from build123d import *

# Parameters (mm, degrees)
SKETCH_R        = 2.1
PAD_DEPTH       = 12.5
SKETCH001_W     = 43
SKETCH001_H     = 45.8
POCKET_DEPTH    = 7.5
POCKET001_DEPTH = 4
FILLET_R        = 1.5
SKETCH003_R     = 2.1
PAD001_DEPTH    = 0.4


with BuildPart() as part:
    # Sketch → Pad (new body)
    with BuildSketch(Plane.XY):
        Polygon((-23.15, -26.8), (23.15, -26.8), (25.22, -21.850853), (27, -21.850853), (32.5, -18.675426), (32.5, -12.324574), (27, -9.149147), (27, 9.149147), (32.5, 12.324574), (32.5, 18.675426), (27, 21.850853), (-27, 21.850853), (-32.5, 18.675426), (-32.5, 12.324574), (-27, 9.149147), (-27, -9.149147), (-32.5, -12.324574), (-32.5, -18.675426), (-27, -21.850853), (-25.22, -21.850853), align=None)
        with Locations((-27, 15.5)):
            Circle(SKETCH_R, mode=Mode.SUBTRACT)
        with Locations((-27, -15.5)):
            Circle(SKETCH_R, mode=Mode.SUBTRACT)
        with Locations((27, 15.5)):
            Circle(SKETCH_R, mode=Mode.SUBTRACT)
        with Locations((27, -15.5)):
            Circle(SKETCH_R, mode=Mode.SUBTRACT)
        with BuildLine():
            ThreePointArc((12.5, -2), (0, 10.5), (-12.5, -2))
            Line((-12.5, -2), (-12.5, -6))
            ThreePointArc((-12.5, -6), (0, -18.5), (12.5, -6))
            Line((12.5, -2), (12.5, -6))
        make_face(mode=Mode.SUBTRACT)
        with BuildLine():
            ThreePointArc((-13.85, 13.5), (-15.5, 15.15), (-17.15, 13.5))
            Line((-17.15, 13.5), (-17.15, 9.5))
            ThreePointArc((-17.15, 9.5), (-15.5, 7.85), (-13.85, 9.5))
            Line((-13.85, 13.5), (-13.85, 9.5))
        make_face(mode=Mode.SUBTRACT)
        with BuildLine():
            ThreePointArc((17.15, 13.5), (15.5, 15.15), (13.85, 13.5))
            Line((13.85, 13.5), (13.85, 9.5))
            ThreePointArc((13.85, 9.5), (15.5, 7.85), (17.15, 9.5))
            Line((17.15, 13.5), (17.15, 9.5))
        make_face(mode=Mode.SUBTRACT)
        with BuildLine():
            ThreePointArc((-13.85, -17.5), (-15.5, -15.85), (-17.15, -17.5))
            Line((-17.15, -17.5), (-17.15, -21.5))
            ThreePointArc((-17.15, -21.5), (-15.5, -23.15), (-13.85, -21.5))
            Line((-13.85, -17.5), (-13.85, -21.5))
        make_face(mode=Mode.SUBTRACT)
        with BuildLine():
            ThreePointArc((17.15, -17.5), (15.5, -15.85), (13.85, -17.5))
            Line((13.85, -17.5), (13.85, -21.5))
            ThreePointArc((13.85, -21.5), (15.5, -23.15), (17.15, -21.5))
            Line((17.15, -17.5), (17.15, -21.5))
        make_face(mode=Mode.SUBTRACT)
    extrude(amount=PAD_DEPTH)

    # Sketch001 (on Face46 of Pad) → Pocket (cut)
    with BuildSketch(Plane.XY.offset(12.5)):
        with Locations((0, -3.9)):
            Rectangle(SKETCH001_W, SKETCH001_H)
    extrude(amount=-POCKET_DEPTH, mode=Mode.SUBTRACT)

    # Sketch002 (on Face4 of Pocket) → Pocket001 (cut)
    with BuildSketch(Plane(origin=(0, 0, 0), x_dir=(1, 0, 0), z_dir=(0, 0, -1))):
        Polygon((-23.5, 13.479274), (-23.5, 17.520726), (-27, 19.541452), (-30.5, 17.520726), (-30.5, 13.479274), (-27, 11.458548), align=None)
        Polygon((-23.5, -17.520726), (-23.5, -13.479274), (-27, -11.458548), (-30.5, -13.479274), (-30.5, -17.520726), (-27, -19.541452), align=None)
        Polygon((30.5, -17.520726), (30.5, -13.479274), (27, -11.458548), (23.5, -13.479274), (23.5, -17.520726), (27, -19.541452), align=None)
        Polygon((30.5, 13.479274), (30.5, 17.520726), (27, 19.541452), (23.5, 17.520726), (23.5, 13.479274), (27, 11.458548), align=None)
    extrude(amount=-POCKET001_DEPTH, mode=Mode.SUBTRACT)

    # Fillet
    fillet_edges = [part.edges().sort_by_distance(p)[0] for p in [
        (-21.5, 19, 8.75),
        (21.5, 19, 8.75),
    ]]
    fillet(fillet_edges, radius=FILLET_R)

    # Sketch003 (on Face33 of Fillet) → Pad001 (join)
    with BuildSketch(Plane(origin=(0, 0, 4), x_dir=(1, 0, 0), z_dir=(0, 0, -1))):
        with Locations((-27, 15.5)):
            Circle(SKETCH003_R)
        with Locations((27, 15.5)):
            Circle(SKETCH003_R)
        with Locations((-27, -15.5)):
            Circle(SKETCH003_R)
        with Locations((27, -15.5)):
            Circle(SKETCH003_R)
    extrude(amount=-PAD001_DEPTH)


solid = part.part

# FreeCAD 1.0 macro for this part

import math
import FreeCAD as App
import Part
import Sketcher
Q = App.Units.Quantity


def edges_at(feature, points):
    """Names of the edges that pass closest to the given points."""
    edges = feature.Shape.Edges
    near = lambda p: min(range(len(edges)), key=lambda i: edges[i].distToShape(Part.Vertex(*p))[0])
    return sorted({f"Edge{near(p) + 1}" for p in points})


def add_polygon(sketch, points):
    """Adds a closed chain of lines whose ends are joined by coincident constraints."""
    first, n = sketch.GeometryCount, len(points)
    for a, b in zip(points, points[1:] + points[:1]):
        sketch.addGeometry(Part.LineSegment(App.Vector(*a, 0), App.Vector(*b, 0)), False)
    for i in range(n):
        sketch.addConstraint(Sketcher.Constraint("Coincident", first + i, 2, first + (i + 1) % n, 1))

doc = App.newDocument("Part")
body = doc.addObject("PartDesign::Body", "Body")

sketch1 = doc.addObject("Sketcher::SketchObject", "Sketch")
body.addObject(sketch1)
sketch1.AttachmentSupport = (doc.XY_Plane, [""])
sketch1.MapMode = "FlatFace"
add_polygon(sketch1, [(-23.15, -26.8), (23.15, -26.8), (25.22, -21.850853), (27, -21.850853), (32.5, -18.675426), (32.5, -12.324574), (27, -9.149147), (27, 9.149147), (32.5, 12.324574), (32.5, 18.675426), (27, 21.850853), (-27, 21.850853), (-32.5, 18.675426), (-32.5, 12.324574), (-27, 9.149147), (-27, -9.149147), (-32.5, -12.324574), (-32.5, -18.675426), (-27, -21.850853), (-25.22, -21.850853)])
sketch1.addGeometry(Part.ArcOfCircle(Part.Circle(App.Vector(-15.5, -17.5, 0), App.Vector(0, 0, 1), 1.65), math.radians(0), math.radians(180)), False)
sketch1.addGeometry(Part.LineSegment(App.Vector(-13.85, -17.5, 0), App.Vector(-13.85, -21.5, 0)), False)
sketch1.addGeometry(Part.ArcOfCircle(Part.Circle(App.Vector(-15.5, -21.5, 0), App.Vector(0, 0, 1), 1.65), math.radians(180), math.radians(360)), False)
sketch1.addGeometry(Part.LineSegment(App.Vector(-17.15, -21.5, 0), App.Vector(-17.15, -17.5, 0)), False)
sketch1.addGeometry(Part.Circle(App.Vector(-27, -15.5, 0), App.Vector(0, 0, 1), 2.1), False)
sketch1.addGeometry(Part.ArcOfCircle(Part.Circle(App.Vector(0, -2, 0), App.Vector(0, 0, 1), 12.5), math.radians(0), math.radians(180)), False)
sketch1.addGeometry(Part.LineSegment(App.Vector(12.5, -2, 0), App.Vector(12.5, -6, 0)), False)
sketch1.addGeometry(Part.ArcOfCircle(Part.Circle(App.Vector(0, -6, 0), App.Vector(0, 0, 1), 12.5), math.radians(180), math.radians(360)), False)
sketch1.addGeometry(Part.LineSegment(App.Vector(-12.5, -6, 0), App.Vector(-12.5, -2, 0)), False)
sketch1.addGeometry(Part.ArcOfCircle(Part.Circle(App.Vector(15.5, -17.5, 0), App.Vector(0, 0, 1), 1.65), math.radians(0), math.radians(180)), False)
sketch1.addGeometry(Part.LineSegment(App.Vector(17.15, -17.5, 0), App.Vector(17.15, -21.5, 0)), False)
sketch1.addGeometry(Part.ArcOfCircle(Part.Circle(App.Vector(15.5, -21.5, 0), App.Vector(0, 0, 1), 1.65), math.radians(180), math.radians(360)), False)
sketch1.addGeometry(Part.LineSegment(App.Vector(13.85, -21.5, 0), App.Vector(13.85, -17.5, 0)), False)
sketch1.addGeometry(Part.Circle(App.Vector(27, -15.5, 0), App.Vector(0, 0, 1), 2.1), False)
sketch1.addGeometry(Part.ArcOfCircle(Part.Circle(App.Vector(-15.5, 13.5, 0), App.Vector(0, 0, 1), 1.65), math.radians(0), math.radians(180)), False)
sketch1.addGeometry(Part.LineSegment(App.Vector(-13.85, 13.5, 0), App.Vector(-13.85, 9.5, 0)), False)
sketch1.addGeometry(Part.ArcOfCircle(Part.Circle(App.Vector(-15.5, 9.5, 0), App.Vector(0, 0, 1), 1.65), math.radians(180), math.radians(360)), False)
sketch1.addGeometry(Part.LineSegment(App.Vector(-17.15, 9.5, 0), App.Vector(-17.15, 13.5, 0)), False)
sketch1.addGeometry(Part.Circle(App.Vector(-27, 15.5, 0), App.Vector(0, 0, 1), 2.1), False)
sketch1.addGeometry(Part.ArcOfCircle(Part.Circle(App.Vector(15.5, 13.5, 0), App.Vector(0, 0, 1), 1.65), math.radians(0), math.radians(180)), False)
sketch1.addGeometry(Part.LineSegment(App.Vector(17.15, 13.5, 0), App.Vector(17.15, 9.5, 0)), False)
sketch1.addGeometry(Part.ArcOfCircle(Part.Circle(App.Vector(15.5, 9.5, 0), App.Vector(0, 0, 1), 1.65), math.radians(180), math.radians(360)), False)
sketch1.addGeometry(Part.LineSegment(App.Vector(13.85, 9.5, 0), App.Vector(13.85, 13.5, 0)), False)
sketch1.addGeometry(Part.Circle(App.Vector(27, 15.5, 0), App.Vector(0, 0, 1), 2.1), False)
sketch1.addConstraint(Sketcher.Constraint("Tangent", 20, 1, 21, 1))
sketch1.addConstraint(Sketcher.Constraint("Tangent", 21, 2, 22, 2))
sketch1.addConstraint(Sketcher.Constraint("Tangent", 22, 1, 23, 1))
sketch1.addConstraint(Sketcher.Constraint("Tangent", 23, 2, 20, 2))
sketch1.addConstraint(Sketcher.Constraint("Tangent", 25, 1, 26, 1))
sketch1.addConstraint(Sketcher.Constraint("Tangent", 26, 2, 27, 2))
sketch1.addConstraint(Sketcher.Constraint("Tangent", 27, 1, 28, 1))
sketch1.addConstraint(Sketcher.Constraint("Tangent", 28, 2, 25, 2))
sketch1.addConstraint(Sketcher.Constraint("Tangent", 29, 1, 30, 1))
sketch1.addConstraint(Sketcher.Constraint("Tangent", 30, 2, 31, 2))
sketch1.addConstraint(Sketcher.Constraint("Tangent", 31, 1, 32, 1))
sketch1.addConstraint(Sketcher.Constraint("Tangent", 32, 2, 29, 2))
sketch1.addConstraint(Sketcher.Constraint("Tangent", 34, 1, 35, 1))
sketch1.addConstraint(Sketcher.Constraint("Tangent", 35, 2, 36, 2))
sketch1.addConstraint(Sketcher.Constraint("Tangent", 36, 1, 37, 1))
sketch1.addConstraint(Sketcher.Constraint("Tangent", 37, 2, 34, 2))
sketch1.addConstraint(Sketcher.Constraint("Tangent", 39, 1, 40, 1))
sketch1.addConstraint(Sketcher.Constraint("Tangent", 40, 2, 41, 2))
sketch1.addConstraint(Sketcher.Constraint("Tangent", 41, 1, 42, 1))
sketch1.addConstraint(Sketcher.Constraint("Tangent", 42, 2, 39, 2))
sketch1.addConstraint(Sketcher.Constraint("Horizontal", 0))
sketch1.addConstraint(Sketcher.Constraint("Horizontal", 2))
sketch1.addConstraint(Sketcher.Constraint("Vertical", 4))
sketch1.addConstraint(Sketcher.Constraint("Vertical", 6))
sketch1.addConstraint(Sketcher.Constraint("Vertical", 8))
sketch1.addConstraint(Sketcher.Constraint("Horizontal", 10))
sketch1.addConstraint(Sketcher.Constraint("Vertical", 12))
sketch1.addConstraint(Sketcher.Constraint("Vertical", 14))
sketch1.addConstraint(Sketcher.Constraint("Vertical", 16))
sketch1.addConstraint(Sketcher.Constraint("Horizontal", 18))
sketch1.addConstraint(Sketcher.Constraint("Vertical", 21))
sketch1.addConstraint(Sketcher.Constraint("Vertical", 23))
sketch1.addConstraint(Sketcher.Constraint("Vertical", 26))
sketch1.addConstraint(Sketcher.Constraint("Vertical", 28))
sketch1.addConstraint(Sketcher.Constraint("Vertical", 30))
sketch1.addConstraint(Sketcher.Constraint("Vertical", 32))
sketch1.addConstraint(Sketcher.Constraint("Vertical", 35))
sketch1.addConstraint(Sketcher.Constraint("Vertical", 37))
sketch1.addConstraint(Sketcher.Constraint("Vertical", 40))
sketch1.addConstraint(Sketcher.Constraint("Vertical", 42))
sketch1.addConstraint(Sketcher.Constraint("Equal", 22, 29))
sketch1.addConstraint(Sketcher.Constraint("Equal", 24, 33))
sketch1.addConstraint(Sketcher.Constraint("Equal", 31, 34))
sketch1.addConstraint(Sketcher.Constraint("Equal", 33, 38))
sketch1.addConstraint(Sketcher.Constraint("Equal", 36, 39))
sketch1.addConstraint(Sketcher.Constraint("Equal", 38, 43))
sketch1.addConstraint(Sketcher.Constraint("Symmetric", 33, 3, 38, 3, -1, 1))
sketch1.addConstraint(Sketcher.Constraint("Symmetric", 24, 3, 43, 3, -1, 1))
sketch1.addConstraint(Sketcher.Constraint("Symmetric", 2, 2, 10, 2, -1, 1))
sketch1.addConstraint(Sketcher.Constraint("Symmetric", 3, 2, 11, 2, -1, 1))
sketch1.addConstraint(Sketcher.Constraint("Symmetric", 5, 2, 13, 2, -1, 1))
sketch1.addConstraint(Sketcher.Constraint("Symmetric", 7, 2, 15, 2, -1, 1))
sketch1.addConstraint(Sketcher.Constraint("Symmetric", 9, 2, 17, 2, -1, 1))
sketch1.addConstraint(Sketcher.Constraint("Symmetric", 20, 3, 29, 3, -2))
sketch1.addConstraint(Sketcher.Constraint("Symmetric", 24, 3, 33, 3, -2))
sketch1.addConstraint(Sketcher.Constraint("Symmetric", 34, 3, 39, 3, -2))
sketch1.addConstraint(Sketcher.Constraint("Symmetric", 8, 2, 11, 2, -2))
sketch1.addConstraint(Sketcher.Constraint("PointOnObject", 25, 3, -2))
sketch1.addConstraint(Sketcher.Constraint("Parallel", 3, 7))
sketch1.addConstraint(Sketcher.Constraint("Parallel", 5, 9))
sketch1.addConstraint(Sketcher.Constraint("Parallel", 9, 13))
sketch1.addConstraint(Sketcher.Constraint("Parallel", 11, 15))
sketch1.addConstraint(Sketcher.Constraint("Parallel", 13, 17))
sketch1.addConstraint(Sketcher.Constraint("Horizontal", 22, 3, 31, 3))
sketch1.addConstraint(Sketcher.Constraint("Horizontal", 36, 3, 41, 3))
sketch1.addConstraint(Sketcher.Constraint("Horizontal", 7, 2, 12, 2))
sketch1.addConstraint(Sketcher.Constraint("Horizontal", 6, 2, 13, 2))
sketch1.addConstraint(Sketcher.Constraint("Vertical", 22, 3, 34, 3))
sketch1.addConstraint(Sketcher.Constraint("Vertical", 43, 3, 2, 2))
sketch1.addConstraint(Sketcher.Constraint("Vertical", 2, 2, 5, 2))
sketch1.addConstraint(Sketcher.Constraint("Equal", 2, 18))
sketch1.addConstraint(Sketcher.Constraint("Equal", 23, 26))
sketch1.addConstraint(Sketcher.Constraint("Equal", 32, 35))
sketch1.addConstraint(Sketcher.Constraint("Equal", 1, 19))
sketch1.addConstraint(Sketcher.Constraint("Diameter", 24, 4.2))
sketch1.addConstraint(Sketcher.Constraint("Radius", 25, 12.5))
sketch1.addConstraint(Sketcher.Constraint("DistanceX", 10, 2, 10, 1, 54.0))
sketch1.addConstraint(Sketcher.Constraint("DistanceY", 21, 2, 21, 1, 4.0))
sketch1.addConstraint(Sketcher.Constraint("Angle", 3, Q("30.000004 deg")))
sketch1.addConstraint(Sketcher.Constraint("Radius", 20, 1.65))
sketch1.addConstraint(Sketcher.Constraint("DistanceX", 0, 1, 0, 2, 46.3))
sketch1.addConstraint(Sketcher.Constraint("DistanceY", 25, 3, -1, 1, 2.0))
sketch1.addConstraint(Sketcher.Constraint("DistanceY", 20, 3, 24, 3, 2.0))
sketch1.addConstraint(Sketcher.Constraint("DistanceX", 20, 3, 29, 3, 31.0))
sketch1.addConstraint(Sketcher.Constraint("DistanceY", 20, 3, 34, 3, 31.0))
sketch1.addConstraint(Sketcher.Constraint("DistanceY", 34, 3, 38, 3, 2.0))
sketch1.addConstraint(Sketcher.Constraint("DistanceX", 29, 3, 3, 2, 17.0))
sketch1.addConstraint(Sketcher.Constraint("DistanceX", 2, 1, 2, 2, 1.78))
sketch1.addConstraint(Sketcher.Constraint("DistanceY", 0, 2, -1, 1, 26.8))
sketch1.addConstraint(Sketcher.Constraint("DistanceY", 4, 1, 4, 2, 6.350852))
sketch1.addConstraint(Sketcher.Constraint("DistanceY", 6, 1, 6, 2, 18.298294))
pad1 = doc.addObject("PartDesign::Pad", "Pad")
body.addObject(pad1)
pad1.Profile = sketch1
pad1.Length = 12.5

sketch2 = doc.addObject("Sketcher::SketchObject", "Sketch001")
body.addObject(sketch2)
sketch2.AttachmentSupport = (doc.XY_Plane, [""])
sketch2.MapMode = "FlatFace"
sketch2.AttachmentOffset = App.Placement(App.Vector(0, 0, 12.5), App.Rotation())
add_polygon(sketch2, [(-21.5, 19), (-21.5, -26.8), (21.5, -26.8), (21.5, 19)])
sketch2.addConstraint(Sketcher.Constraint("Vertical", 0))
sketch2.addConstraint(Sketcher.Constraint("Horizontal", 1))
sketch2.addConstraint(Sketcher.Constraint("Vertical", 2))
sketch2.addConstraint(Sketcher.Constraint("Horizontal", 3))
sketch2.addConstraint(Sketcher.Constraint("DistanceX", 1, 1, 1, 2, 43.0))
sketch2.addConstraint(Sketcher.Constraint("DistanceY", 0, 2, 0, 1, 45.8))
sketch2.addConstraint(Sketcher.Constraint("DistanceY", -1, 1, 2, 2, 19.0))
sketch2.addConstraint(Sketcher.Constraint("DistanceX", 0, 2, -1, 1, 21.5))
pocket1 = doc.addObject("PartDesign::Pocket", "Pocket")
body.addObject(pocket1)
pocket1.Profile = sketch2
pocket1.Length = 7.5

sketch3 = doc.addObject("Sketcher::SketchObject", "Sketch002")
body.addObject(sketch3)
sketch3.AttachmentSupport = (doc.XY_Plane, [""])
sketch3.MapMode = "FlatFace"
add_polygon(sketch3, [(-23.5, -13.479274), (-23.5, -17.520726), (-27, -19.541452), (-30.5, -17.520726), (-30.5, -13.479274), (-27, -11.458548)])
add_polygon(sketch3, [(-23.5, 17.520726), (-23.5, 13.479274), (-27, 11.458548), (-30.5, 13.479274), (-30.5, 17.520726), (-27, 19.541452)])
add_polygon(sketch3, [(30.5, 17.520726), (30.5, 13.479274), (27, 11.458548), (23.5, 13.479274), (23.5, 17.520726), (27, 19.541452)])
add_polygon(sketch3, [(30.5, -13.479274), (30.5, -17.520726), (27, -19.541452), (23.5, -17.520726), (23.5, -13.479274), (27, -11.458548)])
sketch3.addConstraint(Sketcher.Constraint("Vertical", 0))
sketch3.addConstraint(Sketcher.Constraint("Vertical", 3))
sketch3.addConstraint(Sketcher.Constraint("Vertical", 6))
sketch3.addConstraint(Sketcher.Constraint("Vertical", 9))
sketch3.addConstraint(Sketcher.Constraint("Vertical", 12))
sketch3.addConstraint(Sketcher.Constraint("Vertical", 15))
sketch3.addConstraint(Sketcher.Constraint("Vertical", 18))
sketch3.addConstraint(Sketcher.Constraint("Vertical", 21))
sketch3.addConstraint(Sketcher.Constraint("Symmetric", 3, 2, 12, 2, -1, 1))
sketch3.addConstraint(Sketcher.Constraint("Symmetric", 4, 2, 13, 2, -1, 1))
sketch3.addConstraint(Sketcher.Constraint("Symmetric", 5, 2, 14, 2, -1, 1))
sketch3.addConstraint(Sketcher.Constraint("Symmetric", 1, 2, 16, 2, -1, 1))
sketch3.addConstraint(Sketcher.Constraint("Symmetric", 9, 2, 18, 2, -1, 1))
sketch3.addConstraint(Sketcher.Constraint("Symmetric", 10, 2, 19, 2, -1, 1))
sketch3.addConstraint(Sketcher.Constraint("Symmetric", 11, 2, 20, 2, -1, 1))
sketch3.addConstraint(Sketcher.Constraint("Symmetric", 7, 2, 22, 2, -1, 1))
sketch3.addConstraint(Sketcher.Constraint("Symmetric", 8, 2, 12, 2, -2))
sketch3.addConstraint(Sketcher.Constraint("Symmetric", 7, 2, 13, 2, -2))
sketch3.addConstraint(Sketcher.Constraint("Symmetric", 6, 2, 14, 2, -2))
sketch3.addConstraint(Sketcher.Constraint("Symmetric", 10, 2, 16, 2, -2))
sketch3.addConstraint(Sketcher.Constraint("Parallel", 1, 4))
sketch3.addConstraint(Sketcher.Constraint("Parallel", 2, 5))
sketch3.addConstraint(Sketcher.Constraint("Parallel", 4, 7))
sketch3.addConstraint(Sketcher.Constraint("Parallel", 7, 10))
sketch3.addConstraint(Sketcher.Constraint("Parallel", 8, 11))
sketch3.addConstraint(Sketcher.Constraint("Parallel", 13, 16))
sketch3.addConstraint(Sketcher.Constraint("Parallel", 14, 17))
sketch3.addConstraint(Sketcher.Constraint("Parallel", 19, 22))
sketch3.addConstraint(Sketcher.Constraint("Parallel", 20, 23))
sketch3.addConstraint(Sketcher.Constraint("Horizontal", 0, 2, 2, 2))
sketch3.addConstraint(Sketcher.Constraint("Horizontal", 3, 2, 5, 2))
sketch3.addConstraint(Sketcher.Constraint("Angle", 1, Q("-149.999999 deg")))
sketch3.addConstraint(Sketcher.Constraint("DistanceX", 1, 2, -1, 1, 27.0))
sketch3.addConstraint(Sketcher.Constraint("DistanceX", 2, 2, 0, 2, 7.0))
sketch3.addConstraint(Sketcher.Constraint("DistanceY", 0, 2, 6, 2, 31.0))
sketch3.addConstraint(Sketcher.Constraint("DistanceY", 0, 2, 0, 1, 4.041452))
pocket2 = doc.addObject("PartDesign::Pocket", "Pocket001")
body.addObject(pocket2)
pocket2.Profile = sketch3
pocket2.Length = 4
pocket2.Reversed = True
doc.recompute()

fillet = doc.addObject("PartDesign::Fillet", "Fillet")
body.addObject(fillet)
fillet.Base = (pocket2, edges_at(pocket2, [(-21.5, 19, 8.75), (21.5, 19, 8.75)]))
fillet.Radius = 1.5

sketch4 = doc.addObject("Sketcher::SketchObject", "Sketch003")
body.addObject(sketch4)
sketch4.AttachmentSupport = (doc.XY_Plane, [""])
sketch4.MapMode = "FlatFace"
sketch4.AttachmentOffset = App.Placement(App.Vector(0, 0, 4), App.Rotation())
sketch4.addGeometry(Part.Circle(App.Vector(-27, -15.5, 0), App.Vector(0, 0, 1), 2.1), False)
sketch4.addGeometry(Part.Circle(App.Vector(27, -15.5, 0), App.Vector(0, 0, 1), 2.1), False)
sketch4.addGeometry(Part.Circle(App.Vector(-27, 15.5, 0), App.Vector(0, 0, 1), 2.1), False)
sketch4.addGeometry(Part.Circle(App.Vector(27, 15.5, 0), App.Vector(0, 0, 1), 2.1), False)
sketch4.addConstraint(Sketcher.Constraint("Equal", 0, 1))
sketch4.addConstraint(Sketcher.Constraint("Equal", 1, 2))
sketch4.addConstraint(Sketcher.Constraint("Equal", 2, 3))
sketch4.addConstraint(Sketcher.Constraint("Symmetric", 1, 3, 2, 3, -1, 1))
sketch4.addConstraint(Sketcher.Constraint("Symmetric", 0, 3, 3, 3, -1, 1))
sketch4.addConstraint(Sketcher.Constraint("Symmetric", 0, 3, 1, 3, -2))
sketch4.addConstraint(Sketcher.Constraint("Diameter", 0, 4.2))
sketch4.addConstraint(Sketcher.Constraint("DistanceX", 0, 3, -1, 1, 27.0))
sketch4.addConstraint(Sketcher.Constraint("DistanceY", 0, 3, 2, 3, 31.0))
pad2 = doc.addObject("PartDesign::Pad", "Pad001")
body.addObject(pad2)
pad2.Profile = sketch4
pad2.Length = 0.4

doc.recompute()
